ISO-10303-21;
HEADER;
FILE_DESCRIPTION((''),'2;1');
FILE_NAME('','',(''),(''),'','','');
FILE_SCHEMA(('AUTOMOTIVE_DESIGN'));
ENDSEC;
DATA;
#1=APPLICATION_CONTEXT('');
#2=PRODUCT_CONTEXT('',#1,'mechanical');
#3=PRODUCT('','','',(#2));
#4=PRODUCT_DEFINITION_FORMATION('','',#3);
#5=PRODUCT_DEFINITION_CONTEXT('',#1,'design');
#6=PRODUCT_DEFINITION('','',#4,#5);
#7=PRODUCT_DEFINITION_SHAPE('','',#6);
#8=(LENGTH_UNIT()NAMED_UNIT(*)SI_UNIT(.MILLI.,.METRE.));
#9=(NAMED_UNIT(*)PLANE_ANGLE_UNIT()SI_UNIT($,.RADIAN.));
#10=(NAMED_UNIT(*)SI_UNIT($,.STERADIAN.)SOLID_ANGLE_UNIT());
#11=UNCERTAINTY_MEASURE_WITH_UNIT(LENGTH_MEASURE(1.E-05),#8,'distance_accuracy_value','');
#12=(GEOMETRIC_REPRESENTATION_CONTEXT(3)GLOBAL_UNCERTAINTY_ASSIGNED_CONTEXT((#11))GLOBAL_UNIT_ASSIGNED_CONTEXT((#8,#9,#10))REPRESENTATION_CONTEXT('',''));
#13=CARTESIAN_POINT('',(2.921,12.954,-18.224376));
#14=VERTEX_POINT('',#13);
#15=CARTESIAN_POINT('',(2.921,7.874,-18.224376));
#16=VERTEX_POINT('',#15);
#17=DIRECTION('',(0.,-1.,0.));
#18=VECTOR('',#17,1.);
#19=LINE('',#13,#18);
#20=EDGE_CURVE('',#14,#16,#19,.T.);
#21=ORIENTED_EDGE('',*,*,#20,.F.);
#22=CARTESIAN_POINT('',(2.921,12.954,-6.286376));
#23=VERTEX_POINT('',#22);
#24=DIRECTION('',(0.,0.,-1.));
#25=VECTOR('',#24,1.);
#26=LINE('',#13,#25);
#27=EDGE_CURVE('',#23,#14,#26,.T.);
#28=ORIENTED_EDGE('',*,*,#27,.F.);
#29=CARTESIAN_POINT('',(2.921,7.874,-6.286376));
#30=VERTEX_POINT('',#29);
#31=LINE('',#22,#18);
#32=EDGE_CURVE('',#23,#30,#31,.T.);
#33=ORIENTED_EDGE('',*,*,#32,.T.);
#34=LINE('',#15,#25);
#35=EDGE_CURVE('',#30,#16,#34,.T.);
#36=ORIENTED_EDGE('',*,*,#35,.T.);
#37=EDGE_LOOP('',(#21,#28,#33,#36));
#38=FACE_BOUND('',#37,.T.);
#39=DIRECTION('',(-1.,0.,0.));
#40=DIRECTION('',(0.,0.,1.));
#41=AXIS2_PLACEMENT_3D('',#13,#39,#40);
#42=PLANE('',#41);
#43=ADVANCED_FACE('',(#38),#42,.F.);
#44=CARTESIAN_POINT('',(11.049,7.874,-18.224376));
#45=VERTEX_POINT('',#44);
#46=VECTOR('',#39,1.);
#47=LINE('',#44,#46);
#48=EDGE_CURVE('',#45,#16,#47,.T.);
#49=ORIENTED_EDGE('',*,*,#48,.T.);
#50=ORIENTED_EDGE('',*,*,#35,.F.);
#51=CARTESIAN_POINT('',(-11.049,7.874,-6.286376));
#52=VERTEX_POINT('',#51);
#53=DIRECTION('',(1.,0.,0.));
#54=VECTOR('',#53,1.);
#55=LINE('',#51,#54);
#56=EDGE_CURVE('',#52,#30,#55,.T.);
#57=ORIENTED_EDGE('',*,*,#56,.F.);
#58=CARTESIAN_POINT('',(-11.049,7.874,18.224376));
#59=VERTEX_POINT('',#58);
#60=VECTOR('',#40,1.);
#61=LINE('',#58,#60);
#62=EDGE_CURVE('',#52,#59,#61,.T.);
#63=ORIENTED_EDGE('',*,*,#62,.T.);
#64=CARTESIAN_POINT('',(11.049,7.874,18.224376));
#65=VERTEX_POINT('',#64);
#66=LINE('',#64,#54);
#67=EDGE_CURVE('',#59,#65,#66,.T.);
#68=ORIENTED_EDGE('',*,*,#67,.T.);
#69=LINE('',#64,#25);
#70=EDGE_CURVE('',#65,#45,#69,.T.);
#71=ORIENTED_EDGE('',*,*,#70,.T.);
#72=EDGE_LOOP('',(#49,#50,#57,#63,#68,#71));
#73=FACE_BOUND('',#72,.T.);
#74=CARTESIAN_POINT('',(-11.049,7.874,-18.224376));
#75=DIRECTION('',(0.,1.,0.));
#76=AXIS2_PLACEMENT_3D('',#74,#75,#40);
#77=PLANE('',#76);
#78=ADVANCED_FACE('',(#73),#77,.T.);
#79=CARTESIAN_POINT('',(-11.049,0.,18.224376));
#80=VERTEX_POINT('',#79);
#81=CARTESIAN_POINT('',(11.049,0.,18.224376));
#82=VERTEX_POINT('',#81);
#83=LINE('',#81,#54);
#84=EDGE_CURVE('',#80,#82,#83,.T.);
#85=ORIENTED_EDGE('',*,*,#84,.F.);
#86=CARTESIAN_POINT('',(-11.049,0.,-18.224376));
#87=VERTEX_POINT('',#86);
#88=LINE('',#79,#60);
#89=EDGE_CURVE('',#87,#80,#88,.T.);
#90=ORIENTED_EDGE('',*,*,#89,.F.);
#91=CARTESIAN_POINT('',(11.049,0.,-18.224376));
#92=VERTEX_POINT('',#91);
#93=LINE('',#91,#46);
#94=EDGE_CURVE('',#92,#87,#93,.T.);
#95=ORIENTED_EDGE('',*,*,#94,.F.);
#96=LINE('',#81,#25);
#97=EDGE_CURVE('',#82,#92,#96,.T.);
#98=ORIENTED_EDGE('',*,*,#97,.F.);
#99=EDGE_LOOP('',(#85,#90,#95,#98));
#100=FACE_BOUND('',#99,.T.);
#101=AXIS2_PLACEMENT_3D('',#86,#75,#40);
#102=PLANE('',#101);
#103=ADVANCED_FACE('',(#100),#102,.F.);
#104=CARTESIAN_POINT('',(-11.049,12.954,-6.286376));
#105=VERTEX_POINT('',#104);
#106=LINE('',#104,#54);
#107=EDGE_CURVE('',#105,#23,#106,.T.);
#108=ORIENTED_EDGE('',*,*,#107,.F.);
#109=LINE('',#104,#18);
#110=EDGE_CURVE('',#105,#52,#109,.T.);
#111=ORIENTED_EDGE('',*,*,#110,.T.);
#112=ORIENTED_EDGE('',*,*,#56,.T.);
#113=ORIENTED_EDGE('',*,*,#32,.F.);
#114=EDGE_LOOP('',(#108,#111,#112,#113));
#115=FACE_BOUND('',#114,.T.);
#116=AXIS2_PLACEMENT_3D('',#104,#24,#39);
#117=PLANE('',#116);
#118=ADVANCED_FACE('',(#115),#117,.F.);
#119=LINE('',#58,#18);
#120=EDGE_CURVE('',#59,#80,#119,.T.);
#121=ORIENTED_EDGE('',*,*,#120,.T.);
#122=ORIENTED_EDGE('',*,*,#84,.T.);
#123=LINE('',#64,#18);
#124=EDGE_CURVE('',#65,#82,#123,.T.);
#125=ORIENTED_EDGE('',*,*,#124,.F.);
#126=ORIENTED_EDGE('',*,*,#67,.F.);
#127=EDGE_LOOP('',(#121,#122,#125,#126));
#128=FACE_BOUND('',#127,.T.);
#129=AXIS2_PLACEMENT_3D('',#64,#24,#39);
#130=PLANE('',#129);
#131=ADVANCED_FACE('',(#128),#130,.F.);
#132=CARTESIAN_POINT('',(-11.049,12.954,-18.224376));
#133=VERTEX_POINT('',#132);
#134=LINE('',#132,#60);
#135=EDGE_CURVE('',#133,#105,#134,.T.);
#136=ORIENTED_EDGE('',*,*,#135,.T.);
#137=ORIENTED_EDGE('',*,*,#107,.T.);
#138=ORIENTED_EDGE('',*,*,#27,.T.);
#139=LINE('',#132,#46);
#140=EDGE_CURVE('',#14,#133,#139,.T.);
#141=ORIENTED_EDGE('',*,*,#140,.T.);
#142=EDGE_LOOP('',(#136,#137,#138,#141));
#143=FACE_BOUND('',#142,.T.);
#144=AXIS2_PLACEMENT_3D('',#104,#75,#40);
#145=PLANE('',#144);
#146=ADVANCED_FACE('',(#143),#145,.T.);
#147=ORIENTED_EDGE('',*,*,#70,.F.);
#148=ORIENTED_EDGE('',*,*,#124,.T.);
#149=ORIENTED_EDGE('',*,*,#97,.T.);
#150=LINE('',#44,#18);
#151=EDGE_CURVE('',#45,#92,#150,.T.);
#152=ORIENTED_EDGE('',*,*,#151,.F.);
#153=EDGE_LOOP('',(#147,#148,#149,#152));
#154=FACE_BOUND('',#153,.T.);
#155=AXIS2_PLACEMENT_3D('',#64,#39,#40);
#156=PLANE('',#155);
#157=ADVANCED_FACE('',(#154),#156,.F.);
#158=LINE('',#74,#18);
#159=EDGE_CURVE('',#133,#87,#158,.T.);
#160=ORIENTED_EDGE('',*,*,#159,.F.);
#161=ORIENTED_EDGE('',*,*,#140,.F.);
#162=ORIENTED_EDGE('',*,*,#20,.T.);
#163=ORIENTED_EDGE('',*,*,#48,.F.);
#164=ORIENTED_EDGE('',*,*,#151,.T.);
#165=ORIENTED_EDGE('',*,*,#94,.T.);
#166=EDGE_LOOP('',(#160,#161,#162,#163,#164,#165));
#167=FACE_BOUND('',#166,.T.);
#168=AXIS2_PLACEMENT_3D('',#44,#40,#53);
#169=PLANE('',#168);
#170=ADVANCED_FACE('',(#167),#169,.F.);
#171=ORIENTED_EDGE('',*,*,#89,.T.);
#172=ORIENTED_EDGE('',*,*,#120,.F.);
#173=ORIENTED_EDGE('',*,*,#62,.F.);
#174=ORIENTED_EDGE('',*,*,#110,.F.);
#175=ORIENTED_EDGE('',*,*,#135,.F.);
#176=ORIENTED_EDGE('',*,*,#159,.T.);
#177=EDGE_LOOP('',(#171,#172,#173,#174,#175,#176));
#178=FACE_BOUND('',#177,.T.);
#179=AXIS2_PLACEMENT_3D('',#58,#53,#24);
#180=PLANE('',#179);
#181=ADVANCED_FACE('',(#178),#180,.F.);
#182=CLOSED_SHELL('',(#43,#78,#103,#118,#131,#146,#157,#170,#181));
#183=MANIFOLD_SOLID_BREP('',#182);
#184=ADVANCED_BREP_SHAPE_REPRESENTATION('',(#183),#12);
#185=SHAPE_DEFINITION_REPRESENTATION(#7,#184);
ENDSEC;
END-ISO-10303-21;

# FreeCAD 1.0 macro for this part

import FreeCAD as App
import Part
import Sketcher

V = App.Vector
Q = App.Units.Quantity

doc = App.newDocument("Part")
params = doc.addObject("Spreadsheet::Sheet", "Params")
for row, (alias, value) in enumerate([
    ("sketch1_width", "0.87 in"),
    ("pad1_length", "0.31 in"),
    ("sketch2_width", "0.55 in"),
    ("sketch2_height", "0.47 in"),
    ("pad2_length", "0.2 in"),
], start=1):
    params.set(f"A{row}", alias)
    params.set(f"B{row}", "=" + value)
    params.setAlias(f"B{row}", alias)

body = doc.addObject("PartDesign::Body", "Body")

# Sketch on XZ plane
sketch1 = doc.addObject("Sketcher::SketchObject", "Sketch")
body.addObject(sketch1)
sketch1.AttachmentSupport = (doc.XZ_Plane, [""])
sketch1.MapMode = "FlatFace"
sketch1.addGeometry([
    Part.LineSegment(V(-11.049, -18.224376, 0), V(-11.049, 18.224376, 0)),
    Part.LineSegment(V(-11.049, 18.224376, 0), V(11.049, 18.224376, 0)),
    Part.LineSegment(V(11.049, 18.224376, 0), V(11.049, -18.224376, 0)),
    Part.LineSegment(V(11.049, -18.224376, 0), V(-11.049, -18.224376, 0)),
], False)
sketch1.addConstraint([
    Sketcher.Constraint("Coincident", 0, 2, 1, 1),
    Sketcher.Constraint("Coincident", 1, 2, 2, 1),
    Sketcher.Constraint("Coincident", 2, 2, 3, 1),
    Sketcher.Constraint("Coincident", 3, 2, 0, 1),
    Sketcher.Constraint("Vertical", 0),
    Sketcher.Constraint("Horizontal", 1),
    Sketcher.Constraint("Vertical", 2),
    Sketcher.Constraint("Horizontal", 3),
    Sketcher.Constraint("Symmetric", 0, 2, 2, 2, -1, 1),
    Sketcher.Constraint("DistanceX", 1, 1, 1, 2, Q("0.87 in")),
    Sketcher.Constraint("DistanceY", 0, 1, 0, 2, Q("36.448753 mm")),
])
sketch1.setExpression("Constraints[9]", "Params.sketch1_width")
pad1 = doc.addObject("PartDesign::Pad", "Pad")
body.addObject(pad1)
pad1.Profile = sketch1
pad1.setExpression("Length", "Params.pad1_length")
pad1.Reversed = True

# Sketch on XZ plane
sketch2 = doc.addObject("Sketcher::SketchObject", "Sketch001")
body.addObject(sketch2)
sketch2.AttachmentSupport = (doc.XZ_Plane, [""])
sketch2.MapMode = "FlatFace"
sketch2.AttachmentOffset = App.Placement(V(0, 0, -0.31 * 25.4), App.Rotation())
sketch2.addGeometry([
    Part.LineSegment(V(2.921, -6.286376, 0), V(2.921, -18.224376, 0)),
    Part.LineSegment(V(2.921, -18.224376, 0), V(-11.049, -18.224376, 0)),
    Part.LineSegment(V(-11.049, -18.224376, 0), V(-11.049, -6.286376, 0)),
    Part.LineSegment(V(-11.049, -6.286376, 0), V(2.921, -6.286376, 0)),
], False)
sketch2.addConstraint([
    Sketcher.Constraint("Coincident", 0, 2, 1, 1),
    Sketcher.Constraint("Coincident", 1, 2, 2, 1),
    Sketcher.Constraint("Coincident", 2, 2, 3, 1),
    Sketcher.Constraint("Coincident", 3, 2, 0, 1),
    Sketcher.Constraint("Vertical", 0),
    Sketcher.Constraint("Horizontal", 1),
    Sketcher.Constraint("Vertical", 2),
    Sketcher.Constraint("Horizontal", 3),
    Sketcher.Constraint("DistanceX", 1, 2, 1, 1, Q("0.55 in")),
    Sketcher.Constraint("DistanceY", 0, 2, 0, 1, Q("0.47 in")),
    Sketcher.Constraint("DistanceX", -1, 1, 0, 2, Q("0.115 in")),
    Sketcher.Constraint("DistanceY", 0, 2, -1, 1, Q("18.224376 mm")),
])
sketch2.setExpression("Constraints[8]", "Params.sketch2_width")
sketch2.setExpression("Constraints[9]", "Params.sketch2_height")
pad2 = doc.addObject("PartDesign::Pad", "Pad001")
body.addObject(pad2)
pad2.Profile = sketch2
pad2.setExpression("Length", "Params.pad2_length")
pad2.Reversed = True

doc.recompute()
